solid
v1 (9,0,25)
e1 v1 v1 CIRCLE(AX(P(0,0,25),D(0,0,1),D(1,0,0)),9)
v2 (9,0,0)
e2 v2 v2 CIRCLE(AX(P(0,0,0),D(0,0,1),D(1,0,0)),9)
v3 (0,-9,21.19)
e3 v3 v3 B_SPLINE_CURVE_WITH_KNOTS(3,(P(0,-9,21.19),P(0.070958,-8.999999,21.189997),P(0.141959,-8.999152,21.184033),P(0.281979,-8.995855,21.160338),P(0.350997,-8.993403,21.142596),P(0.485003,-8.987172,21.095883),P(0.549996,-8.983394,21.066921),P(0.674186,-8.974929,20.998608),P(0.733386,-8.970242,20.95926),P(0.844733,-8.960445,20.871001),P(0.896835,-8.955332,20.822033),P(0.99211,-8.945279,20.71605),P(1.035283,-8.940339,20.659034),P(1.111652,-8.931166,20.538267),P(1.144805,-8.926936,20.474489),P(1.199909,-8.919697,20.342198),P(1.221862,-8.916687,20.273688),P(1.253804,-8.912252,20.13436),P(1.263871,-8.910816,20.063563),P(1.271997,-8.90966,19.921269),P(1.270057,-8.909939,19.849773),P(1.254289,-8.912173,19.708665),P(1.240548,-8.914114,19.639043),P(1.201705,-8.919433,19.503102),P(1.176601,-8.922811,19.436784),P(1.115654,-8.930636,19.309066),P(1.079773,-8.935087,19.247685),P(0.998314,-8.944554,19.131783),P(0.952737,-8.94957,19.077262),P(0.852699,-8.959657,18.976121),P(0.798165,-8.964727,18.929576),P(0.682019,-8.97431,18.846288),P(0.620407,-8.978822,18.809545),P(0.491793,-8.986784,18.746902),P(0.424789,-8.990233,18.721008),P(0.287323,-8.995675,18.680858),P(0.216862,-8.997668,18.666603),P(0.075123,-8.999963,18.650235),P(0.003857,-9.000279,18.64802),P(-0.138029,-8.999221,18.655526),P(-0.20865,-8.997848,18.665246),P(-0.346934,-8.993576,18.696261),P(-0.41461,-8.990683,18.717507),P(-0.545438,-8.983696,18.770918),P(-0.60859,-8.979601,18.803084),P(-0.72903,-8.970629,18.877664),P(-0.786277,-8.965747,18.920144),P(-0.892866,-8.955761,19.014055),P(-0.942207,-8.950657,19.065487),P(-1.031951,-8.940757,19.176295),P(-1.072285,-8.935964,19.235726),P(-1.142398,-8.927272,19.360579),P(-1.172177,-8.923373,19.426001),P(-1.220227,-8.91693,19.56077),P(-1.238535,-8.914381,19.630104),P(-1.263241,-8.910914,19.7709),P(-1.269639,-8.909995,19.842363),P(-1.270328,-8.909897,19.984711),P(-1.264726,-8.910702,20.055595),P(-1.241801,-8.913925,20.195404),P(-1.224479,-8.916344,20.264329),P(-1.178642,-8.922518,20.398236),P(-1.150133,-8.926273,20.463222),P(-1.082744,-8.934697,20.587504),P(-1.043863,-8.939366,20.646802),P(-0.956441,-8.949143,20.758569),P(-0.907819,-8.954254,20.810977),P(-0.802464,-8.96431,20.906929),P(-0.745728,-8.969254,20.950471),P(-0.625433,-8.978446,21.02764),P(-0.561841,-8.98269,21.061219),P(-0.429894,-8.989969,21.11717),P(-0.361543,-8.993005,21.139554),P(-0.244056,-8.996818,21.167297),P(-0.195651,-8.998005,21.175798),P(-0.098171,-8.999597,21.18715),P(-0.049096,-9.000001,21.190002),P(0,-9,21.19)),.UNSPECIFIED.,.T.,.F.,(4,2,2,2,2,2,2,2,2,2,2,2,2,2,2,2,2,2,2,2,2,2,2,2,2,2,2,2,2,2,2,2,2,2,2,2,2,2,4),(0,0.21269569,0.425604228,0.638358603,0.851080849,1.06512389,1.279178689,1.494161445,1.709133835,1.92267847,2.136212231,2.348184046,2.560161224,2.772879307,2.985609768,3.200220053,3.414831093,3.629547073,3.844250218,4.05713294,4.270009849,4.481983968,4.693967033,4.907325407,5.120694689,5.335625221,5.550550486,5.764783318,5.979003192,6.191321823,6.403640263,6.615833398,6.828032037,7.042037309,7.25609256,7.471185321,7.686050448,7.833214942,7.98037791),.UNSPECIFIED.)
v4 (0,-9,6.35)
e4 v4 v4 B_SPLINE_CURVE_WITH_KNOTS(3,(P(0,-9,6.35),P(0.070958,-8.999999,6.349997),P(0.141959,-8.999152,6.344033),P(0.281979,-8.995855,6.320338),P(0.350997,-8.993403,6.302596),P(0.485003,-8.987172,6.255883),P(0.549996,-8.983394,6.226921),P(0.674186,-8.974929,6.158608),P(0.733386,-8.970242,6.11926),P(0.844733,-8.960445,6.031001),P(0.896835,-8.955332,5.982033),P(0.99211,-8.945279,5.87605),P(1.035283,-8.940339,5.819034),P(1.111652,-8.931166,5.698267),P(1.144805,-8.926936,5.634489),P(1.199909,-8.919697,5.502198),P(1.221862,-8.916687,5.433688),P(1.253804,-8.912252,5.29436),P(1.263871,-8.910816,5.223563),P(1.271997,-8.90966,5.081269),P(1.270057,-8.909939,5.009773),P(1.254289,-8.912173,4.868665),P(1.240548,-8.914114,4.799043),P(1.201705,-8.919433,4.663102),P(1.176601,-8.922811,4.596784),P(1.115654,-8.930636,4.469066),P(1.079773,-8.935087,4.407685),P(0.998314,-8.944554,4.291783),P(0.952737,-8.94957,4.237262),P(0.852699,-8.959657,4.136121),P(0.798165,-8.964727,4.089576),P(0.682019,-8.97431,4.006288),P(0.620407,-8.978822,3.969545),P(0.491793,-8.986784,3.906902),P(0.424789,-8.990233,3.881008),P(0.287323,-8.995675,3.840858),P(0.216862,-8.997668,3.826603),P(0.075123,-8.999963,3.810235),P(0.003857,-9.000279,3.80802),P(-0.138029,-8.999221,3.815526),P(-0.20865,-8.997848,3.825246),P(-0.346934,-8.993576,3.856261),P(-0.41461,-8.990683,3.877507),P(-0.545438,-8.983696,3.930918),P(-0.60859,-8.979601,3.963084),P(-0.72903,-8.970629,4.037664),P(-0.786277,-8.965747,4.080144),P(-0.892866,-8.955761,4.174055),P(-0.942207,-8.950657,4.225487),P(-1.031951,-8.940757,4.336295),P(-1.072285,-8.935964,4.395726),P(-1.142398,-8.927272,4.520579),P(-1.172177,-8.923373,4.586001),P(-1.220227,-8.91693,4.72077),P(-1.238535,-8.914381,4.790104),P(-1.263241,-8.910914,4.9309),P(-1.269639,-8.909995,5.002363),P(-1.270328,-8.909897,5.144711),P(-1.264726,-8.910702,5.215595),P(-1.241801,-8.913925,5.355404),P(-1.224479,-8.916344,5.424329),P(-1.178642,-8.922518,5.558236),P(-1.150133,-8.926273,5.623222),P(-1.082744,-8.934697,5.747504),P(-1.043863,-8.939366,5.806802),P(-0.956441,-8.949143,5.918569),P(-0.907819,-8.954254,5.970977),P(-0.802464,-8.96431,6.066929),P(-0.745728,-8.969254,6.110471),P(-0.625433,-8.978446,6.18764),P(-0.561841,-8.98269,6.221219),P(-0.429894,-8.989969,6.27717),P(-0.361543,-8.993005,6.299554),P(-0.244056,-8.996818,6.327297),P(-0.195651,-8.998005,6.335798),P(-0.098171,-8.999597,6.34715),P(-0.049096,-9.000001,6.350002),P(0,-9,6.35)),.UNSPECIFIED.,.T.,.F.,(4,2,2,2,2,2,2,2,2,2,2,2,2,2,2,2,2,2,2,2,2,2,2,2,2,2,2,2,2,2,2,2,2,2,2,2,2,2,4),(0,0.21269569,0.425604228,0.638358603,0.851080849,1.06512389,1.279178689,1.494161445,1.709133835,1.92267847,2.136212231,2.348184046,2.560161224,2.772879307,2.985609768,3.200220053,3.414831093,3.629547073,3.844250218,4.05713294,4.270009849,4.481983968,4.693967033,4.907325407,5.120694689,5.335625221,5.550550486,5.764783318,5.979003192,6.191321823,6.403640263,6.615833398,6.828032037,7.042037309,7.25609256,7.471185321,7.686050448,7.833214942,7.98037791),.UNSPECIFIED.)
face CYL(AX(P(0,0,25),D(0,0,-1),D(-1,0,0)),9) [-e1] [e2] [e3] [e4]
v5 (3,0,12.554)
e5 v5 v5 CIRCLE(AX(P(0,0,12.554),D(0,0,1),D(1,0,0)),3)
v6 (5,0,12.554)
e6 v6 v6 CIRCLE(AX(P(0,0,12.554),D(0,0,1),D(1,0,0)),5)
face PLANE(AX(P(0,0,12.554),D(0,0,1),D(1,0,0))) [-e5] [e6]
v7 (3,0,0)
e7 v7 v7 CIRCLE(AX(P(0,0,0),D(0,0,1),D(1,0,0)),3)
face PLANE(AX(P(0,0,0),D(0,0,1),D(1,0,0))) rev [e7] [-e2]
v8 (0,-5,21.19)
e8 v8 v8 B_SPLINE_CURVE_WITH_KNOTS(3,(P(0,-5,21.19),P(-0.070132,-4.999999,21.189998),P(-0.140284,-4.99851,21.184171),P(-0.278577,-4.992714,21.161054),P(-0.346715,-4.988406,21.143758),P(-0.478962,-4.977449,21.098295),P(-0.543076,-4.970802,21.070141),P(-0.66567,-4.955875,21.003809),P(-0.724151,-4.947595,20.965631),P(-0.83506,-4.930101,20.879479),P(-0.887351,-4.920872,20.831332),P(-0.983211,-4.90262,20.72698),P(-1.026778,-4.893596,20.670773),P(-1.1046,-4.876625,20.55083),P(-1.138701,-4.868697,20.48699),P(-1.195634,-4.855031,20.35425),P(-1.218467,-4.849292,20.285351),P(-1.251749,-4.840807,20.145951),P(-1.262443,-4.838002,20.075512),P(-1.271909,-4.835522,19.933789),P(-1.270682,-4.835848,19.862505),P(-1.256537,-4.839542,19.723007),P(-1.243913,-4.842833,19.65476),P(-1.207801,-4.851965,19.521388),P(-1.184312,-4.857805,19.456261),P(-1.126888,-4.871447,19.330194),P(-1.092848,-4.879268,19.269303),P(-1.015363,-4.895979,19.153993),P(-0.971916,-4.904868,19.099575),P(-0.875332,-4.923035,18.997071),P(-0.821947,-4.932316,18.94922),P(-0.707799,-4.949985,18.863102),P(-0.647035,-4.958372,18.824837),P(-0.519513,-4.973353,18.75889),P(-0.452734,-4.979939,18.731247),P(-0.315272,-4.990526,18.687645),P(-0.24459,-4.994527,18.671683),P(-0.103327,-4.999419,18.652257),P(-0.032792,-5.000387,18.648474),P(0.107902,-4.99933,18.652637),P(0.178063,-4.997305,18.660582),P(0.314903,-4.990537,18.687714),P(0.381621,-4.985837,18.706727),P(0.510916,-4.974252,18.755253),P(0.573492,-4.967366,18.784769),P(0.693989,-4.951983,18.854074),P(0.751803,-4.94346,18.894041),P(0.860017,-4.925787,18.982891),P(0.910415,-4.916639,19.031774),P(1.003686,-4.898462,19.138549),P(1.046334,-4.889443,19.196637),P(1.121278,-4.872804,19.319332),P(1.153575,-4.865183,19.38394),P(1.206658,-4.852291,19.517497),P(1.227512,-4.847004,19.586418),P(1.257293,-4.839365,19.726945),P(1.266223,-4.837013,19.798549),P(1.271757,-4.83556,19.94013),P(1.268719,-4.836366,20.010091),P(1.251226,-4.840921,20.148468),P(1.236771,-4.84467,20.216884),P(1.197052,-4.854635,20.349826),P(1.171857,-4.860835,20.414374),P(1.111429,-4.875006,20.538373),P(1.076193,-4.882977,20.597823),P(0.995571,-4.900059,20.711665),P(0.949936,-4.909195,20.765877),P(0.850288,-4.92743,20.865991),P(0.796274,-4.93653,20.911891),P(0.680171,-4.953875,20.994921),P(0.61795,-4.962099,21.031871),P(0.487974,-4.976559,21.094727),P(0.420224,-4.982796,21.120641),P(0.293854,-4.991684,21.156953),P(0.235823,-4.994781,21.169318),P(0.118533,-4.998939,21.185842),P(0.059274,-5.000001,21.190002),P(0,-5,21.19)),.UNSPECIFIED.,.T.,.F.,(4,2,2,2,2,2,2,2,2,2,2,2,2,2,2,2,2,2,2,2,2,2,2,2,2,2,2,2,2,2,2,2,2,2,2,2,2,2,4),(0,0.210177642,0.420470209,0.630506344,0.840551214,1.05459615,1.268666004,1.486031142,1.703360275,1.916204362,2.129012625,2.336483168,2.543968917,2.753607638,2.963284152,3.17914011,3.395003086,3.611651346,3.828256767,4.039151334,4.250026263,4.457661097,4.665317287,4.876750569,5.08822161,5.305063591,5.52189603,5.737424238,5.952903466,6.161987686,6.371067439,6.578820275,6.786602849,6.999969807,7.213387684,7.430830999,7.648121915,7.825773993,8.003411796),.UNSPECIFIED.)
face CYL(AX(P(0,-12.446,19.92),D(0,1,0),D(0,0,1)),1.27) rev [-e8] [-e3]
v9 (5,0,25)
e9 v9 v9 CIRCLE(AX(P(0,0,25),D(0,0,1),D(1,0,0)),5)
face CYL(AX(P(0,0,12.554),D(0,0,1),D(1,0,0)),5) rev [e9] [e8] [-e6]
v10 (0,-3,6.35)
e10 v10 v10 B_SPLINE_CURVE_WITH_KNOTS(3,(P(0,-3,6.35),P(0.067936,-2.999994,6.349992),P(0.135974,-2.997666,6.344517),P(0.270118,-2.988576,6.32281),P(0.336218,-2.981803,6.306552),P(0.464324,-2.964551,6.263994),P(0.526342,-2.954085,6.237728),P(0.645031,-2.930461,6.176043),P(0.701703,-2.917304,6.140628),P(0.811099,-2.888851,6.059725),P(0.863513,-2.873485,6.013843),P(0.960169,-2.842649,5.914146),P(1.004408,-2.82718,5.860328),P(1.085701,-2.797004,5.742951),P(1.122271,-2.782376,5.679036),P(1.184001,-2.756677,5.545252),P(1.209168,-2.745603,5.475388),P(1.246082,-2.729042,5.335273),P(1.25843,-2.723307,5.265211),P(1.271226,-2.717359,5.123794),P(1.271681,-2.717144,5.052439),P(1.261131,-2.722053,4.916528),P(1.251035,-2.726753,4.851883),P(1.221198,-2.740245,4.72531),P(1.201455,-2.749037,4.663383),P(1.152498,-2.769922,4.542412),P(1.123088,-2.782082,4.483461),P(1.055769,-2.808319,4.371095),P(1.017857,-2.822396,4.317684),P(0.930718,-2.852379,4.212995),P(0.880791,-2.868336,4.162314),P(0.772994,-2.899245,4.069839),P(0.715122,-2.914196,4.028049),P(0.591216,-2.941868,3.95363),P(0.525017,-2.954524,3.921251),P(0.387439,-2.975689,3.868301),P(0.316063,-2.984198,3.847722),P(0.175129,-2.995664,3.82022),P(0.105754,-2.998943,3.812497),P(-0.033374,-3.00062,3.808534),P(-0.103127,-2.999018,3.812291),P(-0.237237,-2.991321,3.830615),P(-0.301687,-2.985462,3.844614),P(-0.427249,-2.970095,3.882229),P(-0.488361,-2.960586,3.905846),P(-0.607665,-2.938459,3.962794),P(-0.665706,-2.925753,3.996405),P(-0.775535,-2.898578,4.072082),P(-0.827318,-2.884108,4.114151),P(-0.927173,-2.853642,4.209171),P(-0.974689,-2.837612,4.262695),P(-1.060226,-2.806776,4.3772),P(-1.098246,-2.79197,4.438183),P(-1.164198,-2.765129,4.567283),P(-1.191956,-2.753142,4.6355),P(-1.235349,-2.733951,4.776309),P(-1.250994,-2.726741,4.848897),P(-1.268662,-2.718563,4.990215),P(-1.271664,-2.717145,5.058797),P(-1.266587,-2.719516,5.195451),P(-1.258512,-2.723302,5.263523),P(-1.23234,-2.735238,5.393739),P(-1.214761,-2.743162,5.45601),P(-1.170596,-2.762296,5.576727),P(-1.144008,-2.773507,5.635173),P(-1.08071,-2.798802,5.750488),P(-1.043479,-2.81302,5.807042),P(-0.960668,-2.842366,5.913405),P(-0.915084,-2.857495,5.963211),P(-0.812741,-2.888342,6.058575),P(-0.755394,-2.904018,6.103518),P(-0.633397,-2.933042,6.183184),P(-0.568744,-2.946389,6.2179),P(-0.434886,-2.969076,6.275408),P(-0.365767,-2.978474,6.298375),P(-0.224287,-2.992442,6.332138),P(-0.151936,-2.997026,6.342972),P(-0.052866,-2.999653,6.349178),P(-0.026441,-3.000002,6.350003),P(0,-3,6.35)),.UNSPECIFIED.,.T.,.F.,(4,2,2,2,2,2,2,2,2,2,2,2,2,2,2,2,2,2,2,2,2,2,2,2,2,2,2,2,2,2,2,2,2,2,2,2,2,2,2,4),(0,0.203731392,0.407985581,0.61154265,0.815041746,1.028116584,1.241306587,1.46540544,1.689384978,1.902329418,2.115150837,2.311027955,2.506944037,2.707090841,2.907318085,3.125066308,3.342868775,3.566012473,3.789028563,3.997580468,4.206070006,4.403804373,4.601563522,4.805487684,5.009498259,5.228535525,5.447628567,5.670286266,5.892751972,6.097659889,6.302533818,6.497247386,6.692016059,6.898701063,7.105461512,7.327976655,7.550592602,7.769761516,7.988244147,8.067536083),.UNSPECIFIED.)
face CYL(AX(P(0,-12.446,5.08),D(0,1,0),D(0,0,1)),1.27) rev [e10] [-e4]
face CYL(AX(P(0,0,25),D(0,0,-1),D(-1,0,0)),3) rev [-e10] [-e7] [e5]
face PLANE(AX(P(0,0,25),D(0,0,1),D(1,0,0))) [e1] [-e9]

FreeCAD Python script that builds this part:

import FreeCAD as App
import Part
import Sketcher
from FreeCAD import Vector

doc = App.newDocument("Part")
body = doc.addObject("PartDesign::Body", "Body")

# Sketch on XY plane
sketch1 = body.newObject("Sketcher::SketchObject", "Sketch")
sketch1.AttachmentSupport = (doc.getObject("XY_Plane"), [""])
sketch1.MapMode = "FlatFace"
sketch1.addGeometry([
    Part.Circle(Vector(0, 0, 0), Vector(0, 0, 1), 9),
    Part.Circle(Vector(0, 0, 0), Vector(0, 0, 1), 3),
], False)
sketch1.addConstraint([
    Sketcher.Constraint("Coincident", 0, 3, -1, 1),
    Sketcher.Constraint("Coincident", 1, 3, -1, 1),
    Sketcher.Constraint("Diameter", 0, 18.0),
    Sketcher.Constraint("Diameter", 1, 6.0),
])
pad1 = body.newObject("PartDesign::Pad", "Pad")
pad1.Profile = sketch1
pad1.Length = 25

# Sketch on XY plane
sketch2 = body.newObject("Sketcher::SketchObject", "Sketch001")
sketch2.AttachmentSupport = (doc.getObject("XY_Plane"), [""])
sketch2.MapMode = "FlatFace"
sketch2.AttachmentOffset = App.Placement(Vector(0, 0, 25), App.Rotation())
sketch2.addGeometry(Part.Circle(Vector(0, 0, 0), Vector(0, 0, 1), 5), False)
sketch2.addConstraint([
    Sketcher.Constraint("Coincident", 0, 3, -1, 1),
    Sketcher.Constraint("Diameter", 0, 10.0),
])
pocket1 = body.newObject("PartDesign::Pocket", "Pocket")
pocket1.Profile = sketch2
pocket1.Length = 12.446

# Sketch on XZ plane
sketch3 = body.newObject("Sketcher::SketchObject", "Sketch002")
sketch3.AttachmentSupport = (doc.getObject("XZ_Plane"), [""])
sketch3.MapMode = "FlatFace"
sketch3.addGeometry([
    Part.Circle(Vector(0, 5.08, 0), Vector(0, 0, 1), 1.27),
    Part.Circle(Vector(0, 19.92, 0), Vector(0, 0, 1), 1.27),
], False)
sketch3.addConstraint([
    Sketcher.Constraint("Equal", 0, 1),
    Sketcher.Constraint("PointOnObject", 0, 3, -2),
    Sketcher.Constraint("PointOnObject", 1, 3, -2),
    Sketcher.Constraint("Diameter", 0, 2.54),
    Sketcher.Constraint("DistanceY", -1, 1, 0, 3, 5.08),
    Sketcher.Constraint("DistanceY", -1, 1, 1, 3, 19.92),
])
pocket2 = body.newObject("PartDesign::Pocket", "Pocket001")
pocket2.Profile = sketch3
pocket2.Length = 12.446
pocket2.Reversed = True

doc.recompute()
